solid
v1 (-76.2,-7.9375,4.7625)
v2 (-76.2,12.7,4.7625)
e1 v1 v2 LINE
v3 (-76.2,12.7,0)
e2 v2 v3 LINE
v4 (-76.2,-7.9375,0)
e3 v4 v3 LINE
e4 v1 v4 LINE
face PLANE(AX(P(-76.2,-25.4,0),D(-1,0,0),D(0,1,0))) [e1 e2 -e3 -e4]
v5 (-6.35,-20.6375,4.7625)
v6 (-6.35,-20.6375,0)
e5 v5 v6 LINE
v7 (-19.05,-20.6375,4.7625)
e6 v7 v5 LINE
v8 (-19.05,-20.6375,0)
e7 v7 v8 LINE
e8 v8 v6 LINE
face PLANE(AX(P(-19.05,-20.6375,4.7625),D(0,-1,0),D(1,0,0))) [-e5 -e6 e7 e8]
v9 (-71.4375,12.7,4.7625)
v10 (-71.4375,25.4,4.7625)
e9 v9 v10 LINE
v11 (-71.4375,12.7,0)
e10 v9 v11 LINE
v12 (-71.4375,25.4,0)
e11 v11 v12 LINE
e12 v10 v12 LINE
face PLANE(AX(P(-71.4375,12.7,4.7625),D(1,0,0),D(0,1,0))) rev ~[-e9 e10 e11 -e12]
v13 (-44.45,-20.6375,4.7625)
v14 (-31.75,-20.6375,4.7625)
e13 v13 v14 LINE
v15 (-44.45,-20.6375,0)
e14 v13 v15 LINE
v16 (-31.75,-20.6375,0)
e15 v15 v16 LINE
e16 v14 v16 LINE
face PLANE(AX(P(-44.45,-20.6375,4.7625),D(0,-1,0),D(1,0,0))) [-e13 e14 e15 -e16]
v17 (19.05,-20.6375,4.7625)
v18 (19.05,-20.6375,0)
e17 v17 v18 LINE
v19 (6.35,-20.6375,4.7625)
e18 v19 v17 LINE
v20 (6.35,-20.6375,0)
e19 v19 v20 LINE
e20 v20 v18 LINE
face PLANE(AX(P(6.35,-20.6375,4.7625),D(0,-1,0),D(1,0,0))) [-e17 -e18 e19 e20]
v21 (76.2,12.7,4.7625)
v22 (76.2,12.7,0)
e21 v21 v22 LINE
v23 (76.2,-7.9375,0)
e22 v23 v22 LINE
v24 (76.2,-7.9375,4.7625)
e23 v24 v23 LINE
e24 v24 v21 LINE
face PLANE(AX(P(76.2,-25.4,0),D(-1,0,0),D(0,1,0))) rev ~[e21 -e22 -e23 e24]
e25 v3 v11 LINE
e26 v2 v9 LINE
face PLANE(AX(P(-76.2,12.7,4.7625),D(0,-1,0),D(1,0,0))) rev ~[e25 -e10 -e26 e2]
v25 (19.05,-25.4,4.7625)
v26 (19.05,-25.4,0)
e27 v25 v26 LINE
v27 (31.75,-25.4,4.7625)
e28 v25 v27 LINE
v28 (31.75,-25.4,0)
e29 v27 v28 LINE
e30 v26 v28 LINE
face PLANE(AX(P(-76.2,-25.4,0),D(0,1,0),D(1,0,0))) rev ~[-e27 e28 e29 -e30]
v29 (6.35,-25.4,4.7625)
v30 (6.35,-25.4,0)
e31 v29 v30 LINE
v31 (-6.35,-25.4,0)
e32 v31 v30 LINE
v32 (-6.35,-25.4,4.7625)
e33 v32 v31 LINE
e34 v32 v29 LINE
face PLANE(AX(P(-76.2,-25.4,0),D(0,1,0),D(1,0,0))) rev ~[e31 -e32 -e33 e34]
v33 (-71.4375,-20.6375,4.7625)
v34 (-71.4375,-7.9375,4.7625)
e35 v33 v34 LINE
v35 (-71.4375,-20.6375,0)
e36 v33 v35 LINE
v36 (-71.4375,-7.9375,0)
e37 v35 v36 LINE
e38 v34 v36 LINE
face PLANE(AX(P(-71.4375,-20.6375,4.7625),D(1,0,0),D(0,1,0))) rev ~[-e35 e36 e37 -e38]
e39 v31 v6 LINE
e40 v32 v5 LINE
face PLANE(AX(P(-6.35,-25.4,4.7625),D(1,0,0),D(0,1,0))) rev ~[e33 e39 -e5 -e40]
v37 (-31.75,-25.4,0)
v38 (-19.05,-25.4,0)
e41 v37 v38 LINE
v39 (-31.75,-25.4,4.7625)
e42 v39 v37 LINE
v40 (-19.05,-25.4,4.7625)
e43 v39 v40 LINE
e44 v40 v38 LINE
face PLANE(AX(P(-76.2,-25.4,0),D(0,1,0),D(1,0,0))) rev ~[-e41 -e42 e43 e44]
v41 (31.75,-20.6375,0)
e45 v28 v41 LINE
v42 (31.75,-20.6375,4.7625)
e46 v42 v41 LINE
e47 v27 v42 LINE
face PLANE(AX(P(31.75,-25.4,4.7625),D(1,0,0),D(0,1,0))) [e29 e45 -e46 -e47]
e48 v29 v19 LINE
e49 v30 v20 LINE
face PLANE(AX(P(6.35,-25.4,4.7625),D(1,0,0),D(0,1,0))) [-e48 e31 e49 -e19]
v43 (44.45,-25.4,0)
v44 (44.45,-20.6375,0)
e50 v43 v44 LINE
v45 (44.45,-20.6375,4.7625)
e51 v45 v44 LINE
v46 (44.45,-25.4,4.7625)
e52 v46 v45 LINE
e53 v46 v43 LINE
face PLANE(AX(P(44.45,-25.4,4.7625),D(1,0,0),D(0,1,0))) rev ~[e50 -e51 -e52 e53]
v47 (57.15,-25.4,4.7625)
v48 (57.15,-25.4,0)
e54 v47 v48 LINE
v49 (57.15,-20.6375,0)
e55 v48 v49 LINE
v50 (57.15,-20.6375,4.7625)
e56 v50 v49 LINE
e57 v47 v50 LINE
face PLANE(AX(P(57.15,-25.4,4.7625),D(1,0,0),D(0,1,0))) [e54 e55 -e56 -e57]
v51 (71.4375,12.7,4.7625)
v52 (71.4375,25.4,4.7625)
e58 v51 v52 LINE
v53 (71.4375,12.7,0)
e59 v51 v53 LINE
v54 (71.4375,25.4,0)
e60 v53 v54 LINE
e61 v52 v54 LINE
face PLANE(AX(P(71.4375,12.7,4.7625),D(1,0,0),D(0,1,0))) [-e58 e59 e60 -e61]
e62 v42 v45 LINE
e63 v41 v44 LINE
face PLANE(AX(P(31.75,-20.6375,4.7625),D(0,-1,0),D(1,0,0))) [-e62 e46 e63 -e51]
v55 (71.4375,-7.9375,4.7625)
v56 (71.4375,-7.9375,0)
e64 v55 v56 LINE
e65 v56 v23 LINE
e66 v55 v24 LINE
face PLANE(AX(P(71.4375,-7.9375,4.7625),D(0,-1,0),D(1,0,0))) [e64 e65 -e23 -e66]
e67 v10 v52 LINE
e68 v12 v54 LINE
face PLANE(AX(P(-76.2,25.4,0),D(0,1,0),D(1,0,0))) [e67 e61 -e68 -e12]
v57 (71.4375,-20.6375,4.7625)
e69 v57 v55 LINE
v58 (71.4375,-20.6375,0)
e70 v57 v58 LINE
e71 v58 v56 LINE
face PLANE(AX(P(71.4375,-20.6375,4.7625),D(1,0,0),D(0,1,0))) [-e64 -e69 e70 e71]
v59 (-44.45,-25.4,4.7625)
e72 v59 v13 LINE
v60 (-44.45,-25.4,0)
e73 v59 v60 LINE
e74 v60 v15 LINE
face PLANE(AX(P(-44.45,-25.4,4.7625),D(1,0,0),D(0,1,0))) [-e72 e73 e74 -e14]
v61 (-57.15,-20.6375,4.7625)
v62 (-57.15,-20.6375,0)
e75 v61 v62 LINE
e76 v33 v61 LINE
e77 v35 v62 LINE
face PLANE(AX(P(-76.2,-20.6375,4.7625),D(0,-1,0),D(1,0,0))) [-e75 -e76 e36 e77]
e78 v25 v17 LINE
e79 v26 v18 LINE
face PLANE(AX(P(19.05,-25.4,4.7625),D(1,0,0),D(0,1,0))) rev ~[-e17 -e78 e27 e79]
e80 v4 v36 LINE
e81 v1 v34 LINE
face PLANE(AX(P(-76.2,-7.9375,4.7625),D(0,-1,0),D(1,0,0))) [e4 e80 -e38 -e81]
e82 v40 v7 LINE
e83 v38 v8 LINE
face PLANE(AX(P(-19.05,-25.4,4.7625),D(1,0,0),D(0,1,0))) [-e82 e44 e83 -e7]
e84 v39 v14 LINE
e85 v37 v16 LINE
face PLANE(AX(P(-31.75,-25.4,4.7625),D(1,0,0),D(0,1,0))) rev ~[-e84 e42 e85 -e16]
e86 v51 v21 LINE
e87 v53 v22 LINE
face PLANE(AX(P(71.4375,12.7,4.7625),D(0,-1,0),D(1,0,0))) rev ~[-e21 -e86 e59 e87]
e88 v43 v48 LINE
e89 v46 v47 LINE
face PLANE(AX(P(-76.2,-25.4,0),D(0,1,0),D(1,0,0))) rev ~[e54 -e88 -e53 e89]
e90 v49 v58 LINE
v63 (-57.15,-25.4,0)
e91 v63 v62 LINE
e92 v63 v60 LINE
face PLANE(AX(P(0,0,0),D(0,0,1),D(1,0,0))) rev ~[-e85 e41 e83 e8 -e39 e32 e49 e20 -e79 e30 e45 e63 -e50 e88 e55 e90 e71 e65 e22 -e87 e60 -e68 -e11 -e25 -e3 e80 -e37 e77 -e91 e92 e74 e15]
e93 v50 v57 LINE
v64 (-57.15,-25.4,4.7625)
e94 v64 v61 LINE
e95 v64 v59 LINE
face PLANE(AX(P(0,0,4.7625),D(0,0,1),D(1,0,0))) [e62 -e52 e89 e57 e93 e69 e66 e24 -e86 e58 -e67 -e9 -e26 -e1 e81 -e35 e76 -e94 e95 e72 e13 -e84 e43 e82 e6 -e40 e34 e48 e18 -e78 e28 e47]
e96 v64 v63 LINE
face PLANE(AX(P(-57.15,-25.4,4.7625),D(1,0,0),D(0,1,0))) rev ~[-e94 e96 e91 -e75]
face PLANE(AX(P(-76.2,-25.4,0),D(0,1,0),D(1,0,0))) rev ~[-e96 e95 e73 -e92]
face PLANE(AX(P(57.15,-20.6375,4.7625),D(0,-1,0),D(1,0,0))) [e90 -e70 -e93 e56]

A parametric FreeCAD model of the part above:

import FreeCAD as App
import Part
import Sketcher
from FreeCAD import Vector
Q = App.Units.Quantity


def add_polygon(sketch, points):
    """Adds a closed chain of lines whose ends are joined by coincident constraints."""
    first, n = sketch.GeometryCount, len(points)
    for a, b in zip(points, points[1:] + points[:1]):
        sketch.addGeometry(Part.LineSegment(App.Vector(*a, 0), App.Vector(*b, 0)), False)
    for i in range(n):
        sketch.addConstraint(Sketcher.Constraint("Coincident", first + i, 2, first + (i + 1) % n, 1))

doc = App.newDocument("Part")
body = doc.addObject("PartDesign::Body", "Body")

# Sketch on XY plane
sketch1 = body.newObject("Sketcher::SketchObject", "Sketch")
sketch1.AttachmentSupport = (doc.getObject("XY_Plane"), [""])
sketch1.MapMode = "FlatFace"
add_polygon(sketch1, [(-76, 25), (-76, -25), (76, -25), (76, 25)])  # lines 0-3
sketch1.addConstraint([
    Sketcher.Constraint("Vertical", 0),
    Sketcher.Constraint("Horizontal", 1),
    Sketcher.Constraint("Vertical", 2),
    Sketcher.Constraint("Horizontal", 3),
    Sketcher.Constraint("Symmetric", 0, 2, 2, 2, -1, 1),
    Sketcher.Constraint("DistanceX", 1, 1, 1, 2, Q("6 in")),
    Sketcher.Constraint("DistanceY", 0, 2, 0, 1, Q("2 in")),
])
pad1 = body.newObject("PartDesign::Pad", "Pad")
pad1.Profile = sketch1
pad1.Length = Q("0.1875 in")

# Sketch on XY plane
sketch2 = body.newObject("Sketcher::SketchObject", "Sketch001")
sketch2.AttachmentSupport = (doc.getObject("XY_Plane"), [""])
sketch2.MapMode = "FlatFace"
sketch2.AttachmentOffset = App.Placement(Vector(0, 0, 0.1875 * 25.4), App.Rotation())
add_polygon(sketch2, [(-76.2, -20.6), (-76.2, -25.4), (-57.1, -25.4), (-57.1, -20.6)])  # lines 0-3
add_polygon(sketch2, [(-44.5, -20.6), (-44.5, -25.4), (-31.8, -25.4), (-31.8, -20.6)])  # lines 4-7
add_polygon(sketch2, [(-19.1, -20.6), (-19.1, -25.4), (-6.3, -25.4), (-6.3, -20.6)])  # lines 8-11
add_polygon(sketch2, [(6.3, -20.6), (6.3, -25.4), (19.1, -25.4), (19.1, -20.6)])  # lines 12-15
add_polygon(sketch2, [(57.1, -20.6), (57.1, -25.4), (76.2, -25.4), (76.2, -20.6)])  # lines 16-19
add_polygon(sketch2, [(31.8, -20.6), (31.8, -25.4), (44.5, -25.4), (44.5, -20.6)])  # lines 20-23
sketch2.addConstraint([
    Sketcher.Constraint("Vertical", 0),
    Sketcher.Constraint("Horizontal", 1),
    Sketcher.Constraint("Vertical", 2),
    Sketcher.Constraint("Horizontal", 3),
    Sketcher.Constraint("Vertical", 4),
    Sketcher.Constraint("Horizontal", 5),
    Sketcher.Constraint("Vertical", 6),
    Sketcher.Constraint("Horizontal", 7),
    Sketcher.Constraint("Vertical", 8),
    Sketcher.Constraint("Horizontal", 9),
    Sketcher.Constraint("Vertical", 10),
    Sketcher.Constraint("Horizontal", 11),
    Sketcher.Constraint("Vertical", 12),
    Sketcher.Constraint("Horizontal", 13),
    Sketcher.Constraint("Vertical", 14),
    Sketcher.Constraint("Horizontal", 15),
    Sketcher.Constraint("Vertical", 16),
    Sketcher.Constraint("Horizontal", 17),
    Sketcher.Constraint("Vertical", 18),
    Sketcher.Constraint("Horizontal", 19),
    Sketcher.Constraint("Vertical", 20),
    Sketcher.Constraint("Horizontal", 21),
    Sketcher.Constraint("Vertical", 22),
    Sketcher.Constraint("Horizontal", 23),
    Sketcher.Constraint("Symmetric", 9, 2, 12, 2, -2),
    Sketcher.Constraint("Symmetric", 11, 2, 14, 2, -2),
    Sketcher.Constraint("Symmetric", 1, 2, 16, 2, -2),
    Sketcher.Constraint("Symmetric", 3, 2, 18, 2, -2),
    Sketcher.Constraint("Symmetric", 5, 2, 20, 2, -2),
    Sketcher.Constraint("Symmetric", 7, 2, 22, 2, -2),
    Sketcher.Constraint("Horizontal", 1, 2, 4, 2),
    Sketcher.Constraint("Horizontal", 3, 2, 6, 2),
    Sketcher.Constraint("Horizontal", 5, 2, 8, 2),
    Sketcher.Constraint("Horizontal", 7, 2, 10, 2),
    Sketcher.Constraint("Equal", 7, 9),
    Sketcher.Constraint("DistanceX", 5, 1, 5, 2, Q("0.5 in")),
    Sketcher.Constraint("DistanceX", 0, 2, -1, 1, Q("3 in")),
    Sketcher.Constraint("DistanceY", 0, 2, -1, 1, Q("1 in")),
    Sketcher.Constraint("DistanceX", 1, 2, 5, 2, Q("1 in")),
    Sketcher.Constraint("DistanceX", 4, 2, 8, 2, Q("1 in")),
    Sketcher.Constraint("DistanceX", 8, 2, 12, 2, Q("1 in")),
    Sketcher.Constraint("DistanceY", 0, 2, 0, 1, Q("0.1875 in")),
])
pocket1 = body.newObject("PartDesign::Pocket", "Pocket")
pocket1.Profile = sketch2
pocket1.Length = Q("1 in")

# Sketch on XY plane
sketch3 = body.newObject("Sketcher::SketchObject", "Sketch002")
sketch3.AttachmentSupport = (doc.getObject("XY_Plane"), [""])
sketch3.MapMode = "FlatFace"
sketch3.AttachmentOffset = App.Placement(Vector(0, 0, 0.1875 * 25.4), App.Rotation())
add_polygon(sketch3, [(-76.2, 25.4), (-76.2, 12.7), (-71.4, 12.7), (-71.4, 25.4)])  # lines 0-3
add_polygon(sketch3, [(-76.2, -7.9), (-76.2, -20.6), (-71.4, -20.6), (-71.4, -7.9)])  # lines 4-7
add_polygon(sketch3, [(71.4, 25.4), (71.4, 12.7), (76.2, 12.7), (76.2, 25.4)])  # lines 8-11
add_polygon(sketch3, [(71.4, -7.9), (71.4, -20.6), (76.2, -20.6), (76.2, -7.9)])  # lines 12-15
sketch3.addConstraint([
    Sketcher.Constraint("Vertical", 0),
    Sketcher.Constraint("Horizontal", 1),
    Sketcher.Constraint("Vertical", 2),
    Sketcher.Constraint("Horizontal", 3),
    Sketcher.Constraint("Vertical", 4),
    Sketcher.Constraint("Horizontal", 5),
    Sketcher.Constraint("Vertical", 6),
    Sketcher.Constraint("Horizontal", 7),
    Sketcher.Constraint("Vertical", 8),
    Sketcher.Constraint("Horizontal", 9),
    Sketcher.Constraint("Vertical", 10),
    Sketcher.Constraint("Horizontal", 11),
    Sketcher.Constraint("Vertical", 12),
    Sketcher.Constraint("Horizontal", 13),
    Sketcher.Constraint("Vertical", 14),
    Sketcher.Constraint("Horizontal", 15),
    Sketcher.Constraint("Symmetric", 1, 2, 8, 2, -2),
    Sketcher.Constraint("Symmetric", 3, 2, 10, 2, -2),
    Sketcher.Constraint("Symmetric", 5, 2, 12, 2, -2),
    Sketcher.Constraint("Symmetric", 7, 2, 14, 2, -2),
    Sketcher.Constraint("Vertical", 3, 2, 4, 2),
    Sketcher.Constraint("Vertical", 2, 2, 5, 2),
    Sketcher.Constraint("Equal", 2, 4),
    Sketcher.Constraint("DistanceY", 0, 2, 0, 1, Q("0.5 in")),
    Sketcher.Constraint("DistanceX", 0, 2, -1, 1, Q("3 in")),
    Sketcher.Constraint("DistanceY", -1, 1, 2, 2, Q("1 in")),
    Sketcher.Constraint("DistanceX", 1, 1, 1, 2, Q("0.1875 in")),
    Sketcher.Constraint("DistanceY", 4, 2, -1, 1, Q("0.8125 in")),
])
pocket2 = body.newObject("PartDesign::Pocket", "Pocket001")
pocket2.Profile = sketch3
pocket2.Length = Q("1 in")

doc.recompute()
